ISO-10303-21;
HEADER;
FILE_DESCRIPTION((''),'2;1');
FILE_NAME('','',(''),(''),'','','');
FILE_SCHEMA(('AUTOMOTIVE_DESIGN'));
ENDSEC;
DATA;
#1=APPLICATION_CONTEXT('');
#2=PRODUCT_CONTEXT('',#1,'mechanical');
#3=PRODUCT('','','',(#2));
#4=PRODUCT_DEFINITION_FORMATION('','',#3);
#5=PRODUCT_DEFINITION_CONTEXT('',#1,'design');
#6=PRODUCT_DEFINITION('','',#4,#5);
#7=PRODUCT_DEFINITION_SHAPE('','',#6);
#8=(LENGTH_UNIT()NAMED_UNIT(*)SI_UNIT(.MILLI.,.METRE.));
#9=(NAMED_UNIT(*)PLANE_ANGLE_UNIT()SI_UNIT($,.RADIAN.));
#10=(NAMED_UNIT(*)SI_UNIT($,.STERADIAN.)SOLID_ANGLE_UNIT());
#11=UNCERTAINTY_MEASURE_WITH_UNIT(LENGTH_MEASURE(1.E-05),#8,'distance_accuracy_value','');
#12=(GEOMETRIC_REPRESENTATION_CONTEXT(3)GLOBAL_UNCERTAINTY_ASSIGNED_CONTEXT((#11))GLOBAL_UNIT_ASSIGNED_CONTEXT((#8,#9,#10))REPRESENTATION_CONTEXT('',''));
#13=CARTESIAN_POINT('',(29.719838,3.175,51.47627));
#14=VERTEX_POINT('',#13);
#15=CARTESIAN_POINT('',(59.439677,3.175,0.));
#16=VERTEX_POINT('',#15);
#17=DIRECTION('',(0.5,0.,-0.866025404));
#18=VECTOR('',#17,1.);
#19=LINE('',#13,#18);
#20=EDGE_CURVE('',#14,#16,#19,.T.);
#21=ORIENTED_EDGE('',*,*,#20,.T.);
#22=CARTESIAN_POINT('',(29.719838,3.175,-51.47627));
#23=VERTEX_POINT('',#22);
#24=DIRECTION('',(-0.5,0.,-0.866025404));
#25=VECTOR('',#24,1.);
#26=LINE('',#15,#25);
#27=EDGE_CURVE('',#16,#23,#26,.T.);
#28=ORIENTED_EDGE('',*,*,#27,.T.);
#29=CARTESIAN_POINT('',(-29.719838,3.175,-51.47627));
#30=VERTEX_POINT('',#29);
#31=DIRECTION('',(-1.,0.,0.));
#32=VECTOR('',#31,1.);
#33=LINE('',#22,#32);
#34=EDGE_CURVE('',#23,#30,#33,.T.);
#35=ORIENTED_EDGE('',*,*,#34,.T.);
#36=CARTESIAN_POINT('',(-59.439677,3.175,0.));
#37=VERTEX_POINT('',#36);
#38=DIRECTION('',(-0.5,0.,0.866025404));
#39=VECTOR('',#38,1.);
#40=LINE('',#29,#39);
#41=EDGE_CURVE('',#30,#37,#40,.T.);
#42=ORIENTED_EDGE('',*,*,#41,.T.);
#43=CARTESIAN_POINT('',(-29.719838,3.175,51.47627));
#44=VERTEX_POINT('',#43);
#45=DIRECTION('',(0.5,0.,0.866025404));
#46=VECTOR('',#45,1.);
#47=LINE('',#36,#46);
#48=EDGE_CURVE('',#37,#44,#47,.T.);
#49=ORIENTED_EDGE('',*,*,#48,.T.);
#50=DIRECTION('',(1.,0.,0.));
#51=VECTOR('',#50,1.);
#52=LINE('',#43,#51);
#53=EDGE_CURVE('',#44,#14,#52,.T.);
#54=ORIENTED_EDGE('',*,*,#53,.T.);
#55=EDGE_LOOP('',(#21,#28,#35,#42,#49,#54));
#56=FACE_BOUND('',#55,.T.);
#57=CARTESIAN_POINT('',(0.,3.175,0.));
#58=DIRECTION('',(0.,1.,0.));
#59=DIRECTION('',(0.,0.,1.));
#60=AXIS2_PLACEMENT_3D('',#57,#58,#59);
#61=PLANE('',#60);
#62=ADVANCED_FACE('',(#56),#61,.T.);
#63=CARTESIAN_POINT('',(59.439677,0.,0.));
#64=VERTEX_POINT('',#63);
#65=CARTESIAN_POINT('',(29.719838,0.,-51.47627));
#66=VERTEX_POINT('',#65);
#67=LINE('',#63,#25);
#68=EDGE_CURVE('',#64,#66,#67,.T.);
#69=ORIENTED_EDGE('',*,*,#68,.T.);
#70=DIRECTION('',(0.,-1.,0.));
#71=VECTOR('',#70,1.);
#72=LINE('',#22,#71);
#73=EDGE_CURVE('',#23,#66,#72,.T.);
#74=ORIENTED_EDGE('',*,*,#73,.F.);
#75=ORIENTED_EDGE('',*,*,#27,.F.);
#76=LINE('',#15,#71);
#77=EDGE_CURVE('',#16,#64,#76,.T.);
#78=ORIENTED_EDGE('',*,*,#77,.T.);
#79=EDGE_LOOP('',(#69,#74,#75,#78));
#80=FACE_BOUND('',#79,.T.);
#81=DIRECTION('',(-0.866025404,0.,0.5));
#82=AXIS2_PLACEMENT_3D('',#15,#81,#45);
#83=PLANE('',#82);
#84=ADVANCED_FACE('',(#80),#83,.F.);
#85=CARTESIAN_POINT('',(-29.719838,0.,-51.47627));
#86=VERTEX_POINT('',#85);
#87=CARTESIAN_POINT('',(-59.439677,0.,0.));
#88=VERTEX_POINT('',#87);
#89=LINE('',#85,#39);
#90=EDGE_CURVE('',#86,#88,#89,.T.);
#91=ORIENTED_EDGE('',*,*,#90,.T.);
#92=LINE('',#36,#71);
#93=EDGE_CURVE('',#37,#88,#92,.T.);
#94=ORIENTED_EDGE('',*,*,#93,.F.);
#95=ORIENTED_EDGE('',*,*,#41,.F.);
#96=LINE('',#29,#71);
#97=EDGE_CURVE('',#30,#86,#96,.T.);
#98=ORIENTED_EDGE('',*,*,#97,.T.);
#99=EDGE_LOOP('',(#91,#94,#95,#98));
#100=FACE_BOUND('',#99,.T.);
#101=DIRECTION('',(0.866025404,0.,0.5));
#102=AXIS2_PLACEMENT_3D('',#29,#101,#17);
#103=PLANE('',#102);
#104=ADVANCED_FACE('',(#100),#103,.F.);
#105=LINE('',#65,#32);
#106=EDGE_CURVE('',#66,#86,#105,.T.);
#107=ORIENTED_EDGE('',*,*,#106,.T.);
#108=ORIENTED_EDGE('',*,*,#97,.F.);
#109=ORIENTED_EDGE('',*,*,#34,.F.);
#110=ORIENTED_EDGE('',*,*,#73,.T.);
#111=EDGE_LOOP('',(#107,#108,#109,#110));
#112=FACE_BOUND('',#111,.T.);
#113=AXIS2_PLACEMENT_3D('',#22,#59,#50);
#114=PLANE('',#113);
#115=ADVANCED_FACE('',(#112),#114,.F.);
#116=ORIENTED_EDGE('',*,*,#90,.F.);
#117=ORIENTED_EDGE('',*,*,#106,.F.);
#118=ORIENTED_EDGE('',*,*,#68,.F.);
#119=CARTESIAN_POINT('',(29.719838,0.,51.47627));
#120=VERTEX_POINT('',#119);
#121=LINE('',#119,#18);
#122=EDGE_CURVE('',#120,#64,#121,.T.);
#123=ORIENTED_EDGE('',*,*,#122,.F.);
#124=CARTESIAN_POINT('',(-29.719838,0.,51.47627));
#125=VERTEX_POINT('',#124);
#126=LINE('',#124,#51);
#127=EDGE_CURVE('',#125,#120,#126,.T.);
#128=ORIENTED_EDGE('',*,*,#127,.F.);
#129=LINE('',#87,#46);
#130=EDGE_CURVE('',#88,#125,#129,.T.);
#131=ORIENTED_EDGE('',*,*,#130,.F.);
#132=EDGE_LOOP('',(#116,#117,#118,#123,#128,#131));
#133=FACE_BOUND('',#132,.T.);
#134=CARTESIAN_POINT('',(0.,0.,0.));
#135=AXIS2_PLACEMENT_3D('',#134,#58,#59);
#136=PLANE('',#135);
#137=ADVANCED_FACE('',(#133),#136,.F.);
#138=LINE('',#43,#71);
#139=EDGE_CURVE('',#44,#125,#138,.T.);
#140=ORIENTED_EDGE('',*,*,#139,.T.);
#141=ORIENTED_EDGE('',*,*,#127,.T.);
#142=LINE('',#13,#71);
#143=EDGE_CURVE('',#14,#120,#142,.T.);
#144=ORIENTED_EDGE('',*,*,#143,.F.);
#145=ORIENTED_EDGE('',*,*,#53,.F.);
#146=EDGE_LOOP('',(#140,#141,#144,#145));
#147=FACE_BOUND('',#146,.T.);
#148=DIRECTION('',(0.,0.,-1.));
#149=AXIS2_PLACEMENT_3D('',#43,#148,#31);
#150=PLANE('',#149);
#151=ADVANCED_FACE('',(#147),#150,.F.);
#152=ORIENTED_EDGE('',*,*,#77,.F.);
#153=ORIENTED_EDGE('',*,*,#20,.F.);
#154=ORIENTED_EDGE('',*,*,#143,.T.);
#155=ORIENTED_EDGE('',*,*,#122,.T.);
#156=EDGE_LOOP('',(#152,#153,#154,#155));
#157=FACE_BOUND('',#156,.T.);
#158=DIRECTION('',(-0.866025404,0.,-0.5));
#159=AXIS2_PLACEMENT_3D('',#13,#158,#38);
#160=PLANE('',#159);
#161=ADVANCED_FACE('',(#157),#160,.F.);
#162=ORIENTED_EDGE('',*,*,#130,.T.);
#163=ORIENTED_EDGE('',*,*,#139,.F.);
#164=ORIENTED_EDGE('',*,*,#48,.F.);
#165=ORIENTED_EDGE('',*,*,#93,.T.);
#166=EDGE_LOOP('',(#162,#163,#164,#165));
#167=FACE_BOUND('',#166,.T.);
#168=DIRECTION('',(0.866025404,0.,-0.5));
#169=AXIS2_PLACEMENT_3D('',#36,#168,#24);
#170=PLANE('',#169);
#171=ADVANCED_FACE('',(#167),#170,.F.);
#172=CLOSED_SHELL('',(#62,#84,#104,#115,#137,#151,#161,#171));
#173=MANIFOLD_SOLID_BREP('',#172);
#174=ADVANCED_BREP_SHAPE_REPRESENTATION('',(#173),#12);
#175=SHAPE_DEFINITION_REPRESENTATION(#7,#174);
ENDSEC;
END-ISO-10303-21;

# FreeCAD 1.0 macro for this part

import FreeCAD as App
import Part
import Sketcher
from FreeCAD import Vector
Q = App.Units.Quantity

doc = App.newDocument("Part")
body = doc.addObject("PartDesign::Body", "Body")

# Sketch on XZ plane
sketch1 = body.newObject("Sketcher::SketchObject", "Sketch")
sketch1.AttachmentSupport = (doc.getObject("XZ_Plane"), [""])
sketch1.MapMode = "FlatFace"
sketch1.addGeometry([
    Part.LineSegment(Vector(59.439677, 0, 0), Vector(29.719838, -51.47627, 0)),  # 0
    Part.LineSegment(Vector(29.719838, -51.47627, 0), Vector(-29.719838, -51.47627, 0)),  # 1
    Part.LineSegment(Vector(-29.719838, -51.47627, 0), Vector(-59.439677, 0, 0)),  # 2
    Part.LineSegment(Vector(-59.439677, 0, 0), Vector(-29.719838, 51.47627, 0)),  # 3
    Part.LineSegment(Vector(-29.719838, 51.47627, 0), Vector(29.719838, 51.47627, 0)),  # 4
    Part.LineSegment(Vector(29.719838, 51.47627, 0), Vector(59.439677, 0, 0)),  # 5
], False)
sketch1.addConstraint([
    Sketcher.Constraint("Coincident", 0, 2, 1, 1),
    Sketcher.Constraint("Coincident", 1, 2, 2, 1),
    Sketcher.Constraint("Coincident", 2, 2, 3, 1),
    Sketcher.Constraint("Coincident", 3, 2, 4, 1),
    Sketcher.Constraint("Coincident", 4, 2, 5, 1),
    Sketcher.Constraint("Coincident", 5, 2, 0, 1),
    Sketcher.Constraint("Horizontal", 1),
    Sketcher.Constraint("Horizontal", 4),
    Sketcher.Constraint("Symmetric", 0, 2, 3, 2, -1, 1),
    Sketcher.Constraint("Symmetric", 2, 2, 5, 2, -1, 1),
    Sketcher.Constraint("PointOnObject", 2, 2, -1),
    Sketcher.Constraint("Parallel", 2, 5),
    Sketcher.Constraint("Vertical", 1, 2, 3, 2),
    Sketcher.Constraint("Angle", 0, Q("-120 deg")),
    Sketcher.Constraint("DistanceX", 1, 2, 1, 1, Q("59.439677 mm")),
    Sketcher.Constraint("DistanceY", 0, 2, -1, 1, Q("51.47627 mm")),
])
pad1 = body.newObject("PartDesign::Pad", "Pad")
pad1.Profile = sketch1
pad1.Length = Q("0.125 in")
pad1.Reversed = True

doc.recompute()
